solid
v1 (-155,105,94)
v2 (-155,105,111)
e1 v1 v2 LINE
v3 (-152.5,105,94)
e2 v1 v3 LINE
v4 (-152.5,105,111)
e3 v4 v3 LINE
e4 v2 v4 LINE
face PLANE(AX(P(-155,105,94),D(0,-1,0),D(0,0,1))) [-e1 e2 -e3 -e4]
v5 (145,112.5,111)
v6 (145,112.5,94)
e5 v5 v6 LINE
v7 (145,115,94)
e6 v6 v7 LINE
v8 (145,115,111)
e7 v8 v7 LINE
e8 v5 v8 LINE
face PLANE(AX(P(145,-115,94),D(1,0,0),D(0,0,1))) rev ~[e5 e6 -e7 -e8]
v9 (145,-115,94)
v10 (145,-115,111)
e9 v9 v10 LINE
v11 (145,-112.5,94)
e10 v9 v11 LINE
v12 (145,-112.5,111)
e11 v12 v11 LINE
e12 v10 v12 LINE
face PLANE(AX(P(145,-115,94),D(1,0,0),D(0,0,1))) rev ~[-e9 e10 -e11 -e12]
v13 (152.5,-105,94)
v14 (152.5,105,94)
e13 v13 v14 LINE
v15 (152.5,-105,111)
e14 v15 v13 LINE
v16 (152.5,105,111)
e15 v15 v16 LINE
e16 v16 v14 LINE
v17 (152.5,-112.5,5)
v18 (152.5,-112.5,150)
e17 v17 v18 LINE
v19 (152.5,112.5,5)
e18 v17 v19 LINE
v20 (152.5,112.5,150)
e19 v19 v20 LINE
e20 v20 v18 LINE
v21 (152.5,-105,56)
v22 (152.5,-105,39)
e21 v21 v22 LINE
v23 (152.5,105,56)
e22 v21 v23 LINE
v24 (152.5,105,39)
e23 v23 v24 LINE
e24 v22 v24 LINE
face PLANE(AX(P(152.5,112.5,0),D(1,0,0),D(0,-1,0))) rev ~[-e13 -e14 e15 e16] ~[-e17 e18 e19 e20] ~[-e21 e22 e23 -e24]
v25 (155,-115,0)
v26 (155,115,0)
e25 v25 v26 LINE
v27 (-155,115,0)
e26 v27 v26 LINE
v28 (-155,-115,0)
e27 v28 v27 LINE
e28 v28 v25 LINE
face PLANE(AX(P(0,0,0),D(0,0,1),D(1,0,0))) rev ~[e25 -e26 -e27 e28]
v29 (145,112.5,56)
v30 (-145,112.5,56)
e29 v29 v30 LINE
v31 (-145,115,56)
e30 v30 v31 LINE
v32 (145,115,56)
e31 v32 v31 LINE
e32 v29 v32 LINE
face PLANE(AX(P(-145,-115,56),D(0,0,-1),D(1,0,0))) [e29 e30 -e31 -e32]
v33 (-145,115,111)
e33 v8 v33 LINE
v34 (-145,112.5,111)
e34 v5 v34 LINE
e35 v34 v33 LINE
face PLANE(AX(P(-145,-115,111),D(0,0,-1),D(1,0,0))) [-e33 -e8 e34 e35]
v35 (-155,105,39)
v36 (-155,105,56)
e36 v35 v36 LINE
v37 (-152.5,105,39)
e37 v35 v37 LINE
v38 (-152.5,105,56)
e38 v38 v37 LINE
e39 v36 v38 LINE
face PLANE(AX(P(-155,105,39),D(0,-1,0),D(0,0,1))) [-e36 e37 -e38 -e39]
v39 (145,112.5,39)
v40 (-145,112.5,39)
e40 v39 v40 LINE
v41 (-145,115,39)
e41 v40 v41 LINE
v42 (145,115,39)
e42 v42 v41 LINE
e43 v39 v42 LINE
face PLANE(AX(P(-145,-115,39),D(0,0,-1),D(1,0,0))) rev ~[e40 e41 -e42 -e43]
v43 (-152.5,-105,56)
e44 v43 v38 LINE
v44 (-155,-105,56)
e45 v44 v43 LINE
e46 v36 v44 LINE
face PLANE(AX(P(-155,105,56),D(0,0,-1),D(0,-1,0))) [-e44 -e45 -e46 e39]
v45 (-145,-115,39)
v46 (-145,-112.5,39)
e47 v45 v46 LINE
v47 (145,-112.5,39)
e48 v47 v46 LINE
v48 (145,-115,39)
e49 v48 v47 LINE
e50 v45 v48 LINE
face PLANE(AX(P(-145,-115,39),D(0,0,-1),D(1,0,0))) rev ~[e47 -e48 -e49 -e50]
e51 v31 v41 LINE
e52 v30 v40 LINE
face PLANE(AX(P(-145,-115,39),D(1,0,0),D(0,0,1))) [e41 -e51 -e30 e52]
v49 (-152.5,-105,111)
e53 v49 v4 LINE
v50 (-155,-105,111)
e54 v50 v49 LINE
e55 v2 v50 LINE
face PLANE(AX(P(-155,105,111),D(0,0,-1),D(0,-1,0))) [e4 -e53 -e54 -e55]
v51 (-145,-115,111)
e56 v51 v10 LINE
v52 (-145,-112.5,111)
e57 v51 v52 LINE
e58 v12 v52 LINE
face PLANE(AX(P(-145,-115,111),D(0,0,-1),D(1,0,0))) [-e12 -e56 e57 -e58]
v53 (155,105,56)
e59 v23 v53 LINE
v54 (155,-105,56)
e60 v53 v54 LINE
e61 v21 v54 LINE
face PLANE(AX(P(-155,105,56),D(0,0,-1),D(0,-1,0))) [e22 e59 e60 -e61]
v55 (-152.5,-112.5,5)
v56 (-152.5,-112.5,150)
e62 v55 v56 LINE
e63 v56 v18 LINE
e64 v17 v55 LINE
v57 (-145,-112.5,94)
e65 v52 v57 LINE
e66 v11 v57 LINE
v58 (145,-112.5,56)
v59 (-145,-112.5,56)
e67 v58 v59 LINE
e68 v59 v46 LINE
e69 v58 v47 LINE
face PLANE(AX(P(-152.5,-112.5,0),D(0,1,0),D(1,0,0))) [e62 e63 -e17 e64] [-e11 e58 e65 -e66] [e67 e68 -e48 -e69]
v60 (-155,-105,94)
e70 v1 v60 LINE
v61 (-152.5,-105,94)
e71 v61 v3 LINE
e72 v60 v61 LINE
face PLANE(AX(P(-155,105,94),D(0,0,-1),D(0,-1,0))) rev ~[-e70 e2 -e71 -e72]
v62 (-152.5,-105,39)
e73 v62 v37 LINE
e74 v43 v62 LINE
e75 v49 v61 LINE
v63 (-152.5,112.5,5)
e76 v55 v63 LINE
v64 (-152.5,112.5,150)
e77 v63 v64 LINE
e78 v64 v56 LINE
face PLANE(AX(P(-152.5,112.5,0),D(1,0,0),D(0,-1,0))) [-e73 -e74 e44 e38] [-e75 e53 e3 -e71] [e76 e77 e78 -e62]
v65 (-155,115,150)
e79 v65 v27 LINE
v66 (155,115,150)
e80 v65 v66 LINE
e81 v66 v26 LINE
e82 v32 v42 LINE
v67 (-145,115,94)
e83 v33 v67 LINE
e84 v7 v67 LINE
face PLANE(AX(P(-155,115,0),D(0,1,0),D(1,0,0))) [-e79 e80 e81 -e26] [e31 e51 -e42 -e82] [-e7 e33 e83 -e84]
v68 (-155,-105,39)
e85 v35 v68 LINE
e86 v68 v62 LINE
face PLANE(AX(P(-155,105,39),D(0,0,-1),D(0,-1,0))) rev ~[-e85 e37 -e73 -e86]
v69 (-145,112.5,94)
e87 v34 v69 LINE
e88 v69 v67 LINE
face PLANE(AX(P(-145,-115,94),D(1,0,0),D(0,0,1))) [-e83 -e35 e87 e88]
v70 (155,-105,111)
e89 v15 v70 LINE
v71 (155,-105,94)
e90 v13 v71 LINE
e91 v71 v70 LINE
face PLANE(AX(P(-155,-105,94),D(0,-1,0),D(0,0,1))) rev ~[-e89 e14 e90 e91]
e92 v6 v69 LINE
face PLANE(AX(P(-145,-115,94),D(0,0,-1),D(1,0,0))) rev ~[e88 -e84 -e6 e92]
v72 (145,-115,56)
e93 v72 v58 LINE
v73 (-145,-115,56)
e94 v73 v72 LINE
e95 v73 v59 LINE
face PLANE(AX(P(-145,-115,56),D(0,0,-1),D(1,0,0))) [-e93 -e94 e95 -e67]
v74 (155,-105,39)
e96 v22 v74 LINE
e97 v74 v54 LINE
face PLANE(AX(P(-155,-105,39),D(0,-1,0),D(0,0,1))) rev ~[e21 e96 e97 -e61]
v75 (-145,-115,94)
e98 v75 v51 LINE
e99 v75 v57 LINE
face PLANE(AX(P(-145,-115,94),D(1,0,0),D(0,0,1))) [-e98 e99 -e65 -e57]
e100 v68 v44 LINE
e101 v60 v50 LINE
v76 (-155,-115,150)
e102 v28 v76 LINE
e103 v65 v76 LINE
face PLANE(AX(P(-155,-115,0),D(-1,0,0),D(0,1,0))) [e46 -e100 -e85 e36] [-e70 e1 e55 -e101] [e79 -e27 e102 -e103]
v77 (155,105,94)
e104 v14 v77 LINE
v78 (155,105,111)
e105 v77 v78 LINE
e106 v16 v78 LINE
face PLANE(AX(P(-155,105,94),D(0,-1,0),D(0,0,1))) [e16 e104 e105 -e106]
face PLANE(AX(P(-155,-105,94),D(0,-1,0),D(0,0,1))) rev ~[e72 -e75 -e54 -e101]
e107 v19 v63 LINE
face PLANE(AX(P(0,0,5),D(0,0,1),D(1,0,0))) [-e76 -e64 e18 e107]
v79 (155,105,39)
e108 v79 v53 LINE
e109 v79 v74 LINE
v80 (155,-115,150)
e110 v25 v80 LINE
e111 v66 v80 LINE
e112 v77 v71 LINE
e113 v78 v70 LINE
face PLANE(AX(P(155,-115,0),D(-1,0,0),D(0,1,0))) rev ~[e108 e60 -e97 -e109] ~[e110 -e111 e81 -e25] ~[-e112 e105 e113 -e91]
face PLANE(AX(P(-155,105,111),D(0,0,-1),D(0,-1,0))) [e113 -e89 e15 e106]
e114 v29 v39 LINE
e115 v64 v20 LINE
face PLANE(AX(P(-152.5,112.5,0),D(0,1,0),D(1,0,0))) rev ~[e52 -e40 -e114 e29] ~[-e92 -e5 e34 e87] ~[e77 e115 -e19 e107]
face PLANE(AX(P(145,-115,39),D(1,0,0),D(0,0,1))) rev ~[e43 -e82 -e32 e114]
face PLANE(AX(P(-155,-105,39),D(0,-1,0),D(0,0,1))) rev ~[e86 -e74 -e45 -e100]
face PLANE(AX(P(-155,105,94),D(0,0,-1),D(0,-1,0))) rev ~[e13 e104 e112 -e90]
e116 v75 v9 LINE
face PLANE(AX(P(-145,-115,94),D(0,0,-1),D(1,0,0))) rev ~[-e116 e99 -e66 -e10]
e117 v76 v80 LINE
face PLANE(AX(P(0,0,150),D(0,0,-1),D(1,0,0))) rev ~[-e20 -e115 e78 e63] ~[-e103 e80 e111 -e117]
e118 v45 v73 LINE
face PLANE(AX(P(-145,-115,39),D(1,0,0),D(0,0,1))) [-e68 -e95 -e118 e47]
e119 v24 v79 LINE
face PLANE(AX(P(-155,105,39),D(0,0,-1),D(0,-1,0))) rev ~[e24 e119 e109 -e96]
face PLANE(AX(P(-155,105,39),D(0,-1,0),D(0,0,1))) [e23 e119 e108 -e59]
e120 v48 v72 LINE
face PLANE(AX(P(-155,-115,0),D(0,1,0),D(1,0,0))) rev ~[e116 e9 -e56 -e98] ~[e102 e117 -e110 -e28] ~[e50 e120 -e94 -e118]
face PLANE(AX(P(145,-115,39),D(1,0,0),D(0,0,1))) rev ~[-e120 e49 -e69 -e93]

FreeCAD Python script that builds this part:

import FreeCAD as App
import Part
import Sketcher
Q = App.Units.Quantity


def add_polygon(sketch, points):
    """Adds a closed chain of lines whose ends are joined by coincident constraints."""
    first, n = sketch.GeometryCount, len(points)
    for a, b in zip(points, points[1:] + points[:1]):
        sketch.addGeometry(Part.LineSegment(App.Vector(*a, 0), App.Vector(*b, 0)), False)
    for i in range(n):
        sketch.addConstraint(Sketcher.Constraint("Coincident", first + i, 2, first + (i + 1) % n, 1))

doc = App.newDocument("Part")
params = doc.addObject("Spreadsheet::Sheet", "Params")
for row, (alias, value) in enumerate([
    ("sketch1_width", "310 mm"),
    ("sketch1_height", "230 mm"),
    ("pad1_length", "5 mm"),
    ("sketch2_width", "310 mm"),
    ("sketch2_width2", "305 mm"),
    ("sketch2_height", "230 mm"),
    ("sketch2_height2", "225 mm"),
    ("pad2_length", "150 mm"),
    ("sketch3_width", "210 mm"),
    ("sketch3_height", "17 mm"),
    ("sketch4_width", "290 mm"),
    ("sketch4_height", "17 mm"),
], start=1):
    params.set(f"A{row}", alias)
    params.set(f"B{row}", "=" + value)
    params.setAlias(f"B{row}", alias)

body = doc.addObject("PartDesign::Body", "Body")

# Sketch on XY plane
sketch1 = doc.addObject("Sketcher::SketchObject", "Sketch")
body.addObject(sketch1)
sketch1.AttachmentSupport = (doc.XY_Plane, [""])
sketch1.MapMode = "FlatFace"
add_polygon(sketch1, [(-155, 115), (-155, -115), (155, -115), (155, 115)])  # lines 0-3
sketch1.addConstraint(Sketcher.Constraint("Vertical", 0))
sketch1.addConstraint(Sketcher.Constraint("Horizontal", 1))
sketch1.addConstraint(Sketcher.Constraint("Vertical", 2))
sketch1.addConstraint(Sketcher.Constraint("Horizontal", 3))
sketch1.addConstraint(Sketcher.Constraint("Symmetric", 0, 2, 2, 2, -1, 1))
sketch1.addConstraint(Sketcher.Constraint("DistanceX", 1, 1, 1, 2, Q("310 mm")))
sketch1.addConstraint(Sketcher.Constraint("DistanceY", 0, 2, 0, 1, Q("230 mm")))
sketch1.setExpression("Constraints[9]", "Params.sketch1_width")
sketch1.setExpression("Constraints[10]", "Params.sketch1_height")
pad1 = doc.addObject("PartDesign::Pad", "Pad")
body.addObject(pad1)
pad1.Profile = sketch1
pad1.setExpression("Length", "Params.pad1_length")

# Sketch on XY plane
sketch2 = doc.addObject("Sketcher::SketchObject", "Sketch001")
body.addObject(sketch2)
sketch2.AttachmentSupport = (doc.XY_Plane, [""])
sketch2.MapMode = "FlatFace"
add_polygon(sketch2, [(-155, -115), (-155, 115), (155, 115), (155, -115)])  # lines 0-3
add_polygon(sketch2, [(152, 112), (-152, 112), (-152, -112), (152, -112)])  # lines 4-7
sketch2.addConstraint(Sketcher.Constraint("Vertical", 0))
sketch2.addConstraint(Sketcher.Constraint("Horizontal", 1))
sketch2.addConstraint(Sketcher.Constraint("Vertical", 2))
sketch2.addConstraint(Sketcher.Constraint("Horizontal", 3))
sketch2.addConstraint(Sketcher.Constraint("Horizontal", 4))
sketch2.addConstraint(Sketcher.Constraint("Vertical", 5))
sketch2.addConstraint(Sketcher.Constraint("Horizontal", 6))
sketch2.addConstraint(Sketcher.Constraint("Vertical", 7))
sketch2.addConstraint(Sketcher.Constraint("Symmetric", 0, 2, 2, 2, -1, 1))
sketch2.addConstraint(Sketcher.Constraint("Symmetric", 4, 2, 6, 2, -1, 1))
sketch2.addConstraint(Sketcher.Constraint("DistanceX", 1, 1, 1, 2, Q("310 mm")))
sketch2.addConstraint(Sketcher.Constraint("DistanceX", 4, 2, 4, 1, Q("305 mm")))
sketch2.addConstraint(Sketcher.Constraint("DistanceY", 0, 1, 0, 2, Q("230 mm")))
sketch2.addConstraint(Sketcher.Constraint("DistanceY", 5, 2, 5, 1, Q("225 mm")))
sketch2.setExpression("Constraints[18]", "Params.sketch2_width")
sketch2.setExpression("Constraints[19]", "Params.sketch2_width2")
sketch2.setExpression("Constraints[20]", "Params.sketch2_height")
sketch2.setExpression("Constraints[21]", "Params.sketch2_height2")
pad2 = doc.addObject("PartDesign::Pad", "Pad001")
body.addObject(pad2)
pad2.Profile = sketch2
pad2.setExpression("Length", "Params.pad2_length")

# Sketch on YZ plane
sketch3 = doc.addObject("Sketcher::SketchObject", "Sketch002")
body.addObject(sketch3)
sketch3.AttachmentSupport = (doc.YZ_Plane, [""])
sketch3.MapMode = "FlatFace"
sketch3.AttachmentOffset = App.Placement(App.Vector(0, 0, -155), App.Rotation())
add_polygon(sketch3, [(105, 111), (105, 94), (-105, 94), (-105, 111)])  # lines 0-3
add_polygon(sketch3, [(105, 56), (105, 39), (-105, 39), (-105, 56)])  # lines 4-7
sketch3.addConstraint(Sketcher.Constraint("Vertical", 0))
sketch3.addConstraint(Sketcher.Constraint("Horizontal", 1))
sketch3.addConstraint(Sketcher.Constraint("Vertical", 2))
sketch3.addConstraint(Sketcher.Constraint("Horizontal", 3))
sketch3.addConstraint(Sketcher.Constraint("Vertical", 4))
sketch3.addConstraint(Sketcher.Constraint("Horizontal", 5))
sketch3.addConstraint(Sketcher.Constraint("Vertical", 6))
sketch3.addConstraint(Sketcher.Constraint("Horizontal", 7))
sketch3.addConstraint(Sketcher.Constraint("Vertical", 3, 2, 4, 2))
sketch3.addConstraint(Sketcher.Constraint("Vertical", 2, 2, 5, 2))
sketch3.addConstraint(Sketcher.Constraint("Equal", 2, 4))
sketch3.addConstraint(Sketcher.Constraint("DistanceX", 1, 2, 1, 1, Q("210 mm")))
sketch3.addConstraint(Sketcher.Constraint("DistanceY", 0, 2, 0, 1, Q("17 mm")))
sketch3.addConstraint(Sketcher.Constraint("DistanceX", -1, 1, 0, 2, Q("105 mm")))
sketch3.addConstraint(Sketcher.Constraint("DistanceY", -1, 1, 0, 2, Q("94 mm")))
sketch3.addConstraint(Sketcher.Constraint("DistanceY", -1, 1, 4, 2, Q("39 mm")))
sketch3.setExpression("Constraints[19]", "Params.sketch3_width")
sketch3.setExpression("Constraints[20]", "Params.sketch3_height")
pocket1 = doc.addObject("PartDesign::Pocket", "Pocket")
body.addObject(pocket1)
pocket1.Profile = sketch3
pocket1.Type = "ThroughAll"
pocket1.Reversed = True

# Sketch on XZ plane
sketch4 = doc.addObject("Sketcher::SketchObject", "Sketch003")
body.addObject(sketch4)
sketch4.AttachmentSupport = (doc.XZ_Plane, [""])
sketch4.MapMode = "FlatFace"
sketch4.AttachmentOffset = App.Placement(App.Vector(0, 0, 115), App.Rotation())
add_polygon(sketch4, [(-145, 111), (-145, 94), (145, 94), (145, 111)])  # lines 0-3
add_polygon(sketch4, [(-145, 56), (-145, 39), (145, 39), (145, 56)])  # lines 4-7
sketch4.addConstraint(Sketcher.Constraint("Vertical", 0))
sketch4.addConstraint(Sketcher.Constraint("Horizontal", 1))
sketch4.addConstraint(Sketcher.Constraint("Vertical", 2))
sketch4.addConstraint(Sketcher.Constraint("Horizontal", 3))
sketch4.addConstraint(Sketcher.Constraint("Vertical", 4))
sketch4.addConstraint(Sketcher.Constraint("Horizontal", 5))
sketch4.addConstraint(Sketcher.Constraint("Vertical", 6))
sketch4.addConstraint(Sketcher.Constraint("Horizontal", 7))
sketch4.addConstraint(Sketcher.Constraint("Vertical", 3, 2, 4, 2))
sketch4.addConstraint(Sketcher.Constraint("Vertical", 2, 2, 5, 2))
sketch4.addConstraint(Sketcher.Constraint("Equal", 2, 4))
sketch4.addConstraint(Sketcher.Constraint("DistanceX", 1, 1, 1, 2, Q("290 mm")))
sketch4.addConstraint(Sketcher.Constraint("DistanceY", 0, 2, 0, 1, Q("17 mm")))
sketch4.addConstraint(Sketcher.Constraint("DistanceX", 0, 2, -1, 1, Q("145 mm")))
sketch4.addConstraint(Sketcher.Constraint("DistanceY", -1, 1, 0, 2, Q("94 mm")))
sketch4.addConstraint(Sketcher.Constraint("DistanceY", -1, 1, 4, 2, Q("39 mm")))
sketch4.setExpression("Constraints[19]", "Params.sketch4_width")
sketch4.setExpression("Constraints[20]", "Params.sketch4_height")
pocket2 = doc.addObject("PartDesign::Pocket", "Pocket001")
body.addObject(pocket2)
pocket2.Profile = sketch4
pocket2.Type = "ThroughAll"

doc.recompute()
